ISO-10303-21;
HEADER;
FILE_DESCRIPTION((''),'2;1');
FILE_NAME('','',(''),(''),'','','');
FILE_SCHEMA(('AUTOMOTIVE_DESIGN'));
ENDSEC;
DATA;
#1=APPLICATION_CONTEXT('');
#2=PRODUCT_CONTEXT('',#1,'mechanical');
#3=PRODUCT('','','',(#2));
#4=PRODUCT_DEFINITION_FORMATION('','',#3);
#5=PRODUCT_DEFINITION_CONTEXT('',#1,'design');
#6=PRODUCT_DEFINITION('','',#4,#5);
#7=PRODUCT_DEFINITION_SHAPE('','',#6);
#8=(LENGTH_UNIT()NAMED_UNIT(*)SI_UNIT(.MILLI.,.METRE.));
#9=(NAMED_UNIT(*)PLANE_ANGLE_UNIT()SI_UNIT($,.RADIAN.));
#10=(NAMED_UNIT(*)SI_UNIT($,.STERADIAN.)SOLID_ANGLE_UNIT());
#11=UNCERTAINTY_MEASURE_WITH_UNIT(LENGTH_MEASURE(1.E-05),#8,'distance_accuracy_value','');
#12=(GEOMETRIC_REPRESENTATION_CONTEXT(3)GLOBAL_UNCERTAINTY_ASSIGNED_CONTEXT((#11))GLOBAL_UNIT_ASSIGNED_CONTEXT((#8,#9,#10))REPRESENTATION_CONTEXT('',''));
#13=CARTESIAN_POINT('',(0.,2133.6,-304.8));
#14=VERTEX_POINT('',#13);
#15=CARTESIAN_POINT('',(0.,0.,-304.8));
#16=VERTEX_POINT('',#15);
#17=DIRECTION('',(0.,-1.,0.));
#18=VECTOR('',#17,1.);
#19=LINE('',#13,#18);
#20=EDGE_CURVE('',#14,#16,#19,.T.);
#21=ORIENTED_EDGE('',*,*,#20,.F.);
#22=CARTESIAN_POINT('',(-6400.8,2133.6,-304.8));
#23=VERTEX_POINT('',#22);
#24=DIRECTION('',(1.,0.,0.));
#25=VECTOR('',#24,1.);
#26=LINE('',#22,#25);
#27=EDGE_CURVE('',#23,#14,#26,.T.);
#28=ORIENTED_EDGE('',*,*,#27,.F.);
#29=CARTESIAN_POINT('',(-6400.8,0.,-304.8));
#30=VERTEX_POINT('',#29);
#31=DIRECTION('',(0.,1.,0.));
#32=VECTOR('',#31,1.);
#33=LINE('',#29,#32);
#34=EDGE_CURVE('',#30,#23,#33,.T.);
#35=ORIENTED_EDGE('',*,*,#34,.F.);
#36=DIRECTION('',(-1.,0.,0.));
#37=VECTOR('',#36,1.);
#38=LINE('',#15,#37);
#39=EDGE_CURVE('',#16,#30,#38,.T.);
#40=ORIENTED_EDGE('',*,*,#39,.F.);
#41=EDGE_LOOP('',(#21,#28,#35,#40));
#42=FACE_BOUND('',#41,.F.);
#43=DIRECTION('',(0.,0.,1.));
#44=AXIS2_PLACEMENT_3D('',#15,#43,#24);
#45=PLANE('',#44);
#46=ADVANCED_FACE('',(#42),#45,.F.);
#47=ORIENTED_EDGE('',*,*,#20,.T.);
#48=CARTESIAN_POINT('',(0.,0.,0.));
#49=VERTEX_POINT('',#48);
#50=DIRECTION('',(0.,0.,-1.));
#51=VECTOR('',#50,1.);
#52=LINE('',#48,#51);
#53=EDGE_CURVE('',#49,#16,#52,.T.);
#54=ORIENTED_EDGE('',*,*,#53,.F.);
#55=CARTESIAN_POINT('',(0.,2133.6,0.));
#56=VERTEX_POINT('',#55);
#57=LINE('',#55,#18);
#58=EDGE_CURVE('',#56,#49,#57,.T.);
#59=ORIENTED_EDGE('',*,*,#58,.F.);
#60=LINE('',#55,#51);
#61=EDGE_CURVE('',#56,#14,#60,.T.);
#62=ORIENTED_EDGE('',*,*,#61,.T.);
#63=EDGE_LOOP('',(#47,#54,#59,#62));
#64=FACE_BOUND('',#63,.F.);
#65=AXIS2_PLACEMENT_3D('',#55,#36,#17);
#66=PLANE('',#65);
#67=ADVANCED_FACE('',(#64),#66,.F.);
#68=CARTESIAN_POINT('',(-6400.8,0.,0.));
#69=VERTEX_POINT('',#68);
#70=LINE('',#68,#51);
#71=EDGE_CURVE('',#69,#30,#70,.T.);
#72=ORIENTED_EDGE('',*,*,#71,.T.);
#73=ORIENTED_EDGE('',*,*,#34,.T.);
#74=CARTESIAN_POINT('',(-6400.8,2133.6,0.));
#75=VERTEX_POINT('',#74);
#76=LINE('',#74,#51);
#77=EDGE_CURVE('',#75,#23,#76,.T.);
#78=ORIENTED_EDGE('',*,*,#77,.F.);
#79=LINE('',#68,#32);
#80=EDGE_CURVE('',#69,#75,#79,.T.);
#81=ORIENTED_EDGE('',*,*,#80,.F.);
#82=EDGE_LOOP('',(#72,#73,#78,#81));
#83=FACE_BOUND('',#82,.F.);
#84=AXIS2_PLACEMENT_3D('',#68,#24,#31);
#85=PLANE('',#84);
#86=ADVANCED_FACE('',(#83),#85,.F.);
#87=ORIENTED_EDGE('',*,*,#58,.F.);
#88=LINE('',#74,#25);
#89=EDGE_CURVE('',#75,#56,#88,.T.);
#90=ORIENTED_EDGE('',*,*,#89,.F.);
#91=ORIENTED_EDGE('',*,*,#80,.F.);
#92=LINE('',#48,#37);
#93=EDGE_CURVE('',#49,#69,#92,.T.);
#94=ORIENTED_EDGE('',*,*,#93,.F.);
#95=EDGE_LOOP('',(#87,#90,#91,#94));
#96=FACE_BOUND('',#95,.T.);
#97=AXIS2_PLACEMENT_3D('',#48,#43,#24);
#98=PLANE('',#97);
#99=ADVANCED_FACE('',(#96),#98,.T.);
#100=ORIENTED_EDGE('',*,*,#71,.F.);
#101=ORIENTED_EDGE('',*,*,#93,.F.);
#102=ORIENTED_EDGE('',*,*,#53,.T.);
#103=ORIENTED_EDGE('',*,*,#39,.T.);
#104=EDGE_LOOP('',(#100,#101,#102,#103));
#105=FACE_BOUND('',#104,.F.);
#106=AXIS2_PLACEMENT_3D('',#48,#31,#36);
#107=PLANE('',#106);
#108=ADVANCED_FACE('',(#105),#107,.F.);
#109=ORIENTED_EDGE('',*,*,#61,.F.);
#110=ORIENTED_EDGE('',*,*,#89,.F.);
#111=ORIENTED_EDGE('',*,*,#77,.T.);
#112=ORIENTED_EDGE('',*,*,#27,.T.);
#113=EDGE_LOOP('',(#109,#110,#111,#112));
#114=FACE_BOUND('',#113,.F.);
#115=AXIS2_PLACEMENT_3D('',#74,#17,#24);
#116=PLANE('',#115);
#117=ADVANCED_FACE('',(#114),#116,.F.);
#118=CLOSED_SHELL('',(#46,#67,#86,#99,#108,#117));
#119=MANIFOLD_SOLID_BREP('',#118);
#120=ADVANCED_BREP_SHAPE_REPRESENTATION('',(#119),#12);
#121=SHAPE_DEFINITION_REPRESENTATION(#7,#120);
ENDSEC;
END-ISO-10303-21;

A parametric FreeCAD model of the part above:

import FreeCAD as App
import Part
import Sketcher
from FreeCAD import Vector
Q = App.Units.Quantity

doc = App.newDocument("Part")
body = doc.addObject("PartDesign::Body", "Body")

sketch1 = doc.addObject("Sketcher::SketchObject", "Sketch")
body.addObject(sketch1)
sketch1.AttachmentSupport = (doc.XY_Plane, [""])
sketch1.MapMode = "FlatFace"
sketch1.addGeometry(Part.LineSegment(Vector(-6401, 0, 0), Vector(0, 0, 0)), False)
sketch1.addGeometry(Part.LineSegment(Vector(0, 0, 0), Vector(0, 2134, 0)), False)
sketch1.addGeometry(Part.LineSegment(Vector(0, 2134, 0), Vector(-6401, 2134, 0)), False)
sketch1.addGeometry(Part.LineSegment(Vector(-6401, 2134, 0), Vector(-6401, 0, 0)), False)
sketch1.addConstraint(Sketcher.Constraint("Coincident", 0, 2, 1, 1))
sketch1.addConstraint(Sketcher.Constraint("Coincident", 1, 2, 2, 1))
sketch1.addConstraint(Sketcher.Constraint("Coincident", 2, 2, 3, 1))
sketch1.addConstraint(Sketcher.Constraint("Coincident", 3, 2, 0, 1))
sketch1.addConstraint(Sketcher.Constraint("Horizontal", 0))
sketch1.addConstraint(Sketcher.Constraint("Vertical", 1))
sketch1.addConstraint(Sketcher.Constraint("Horizontal", 2))
sketch1.addConstraint(Sketcher.Constraint("Vertical", 3))
sketch1.addConstraint(Sketcher.Constraint("Coincident", 0, 2, -1, 1))
sketch1.addConstraint(Sketcher.Constraint("DistanceX", 0, 1, 0, 2, Q("252 in")))
sketch1.addConstraint(Sketcher.Constraint("DistanceY", 1, 1, 1, 2, Q("84 in")))
pad1 = doc.addObject("PartDesign::Pad", "Pad")
body.addObject(pad1)
pad1.Profile = sketch1
pad1.Length = Q("12 in")
pad1.Reversed = True

doc.recompute()
